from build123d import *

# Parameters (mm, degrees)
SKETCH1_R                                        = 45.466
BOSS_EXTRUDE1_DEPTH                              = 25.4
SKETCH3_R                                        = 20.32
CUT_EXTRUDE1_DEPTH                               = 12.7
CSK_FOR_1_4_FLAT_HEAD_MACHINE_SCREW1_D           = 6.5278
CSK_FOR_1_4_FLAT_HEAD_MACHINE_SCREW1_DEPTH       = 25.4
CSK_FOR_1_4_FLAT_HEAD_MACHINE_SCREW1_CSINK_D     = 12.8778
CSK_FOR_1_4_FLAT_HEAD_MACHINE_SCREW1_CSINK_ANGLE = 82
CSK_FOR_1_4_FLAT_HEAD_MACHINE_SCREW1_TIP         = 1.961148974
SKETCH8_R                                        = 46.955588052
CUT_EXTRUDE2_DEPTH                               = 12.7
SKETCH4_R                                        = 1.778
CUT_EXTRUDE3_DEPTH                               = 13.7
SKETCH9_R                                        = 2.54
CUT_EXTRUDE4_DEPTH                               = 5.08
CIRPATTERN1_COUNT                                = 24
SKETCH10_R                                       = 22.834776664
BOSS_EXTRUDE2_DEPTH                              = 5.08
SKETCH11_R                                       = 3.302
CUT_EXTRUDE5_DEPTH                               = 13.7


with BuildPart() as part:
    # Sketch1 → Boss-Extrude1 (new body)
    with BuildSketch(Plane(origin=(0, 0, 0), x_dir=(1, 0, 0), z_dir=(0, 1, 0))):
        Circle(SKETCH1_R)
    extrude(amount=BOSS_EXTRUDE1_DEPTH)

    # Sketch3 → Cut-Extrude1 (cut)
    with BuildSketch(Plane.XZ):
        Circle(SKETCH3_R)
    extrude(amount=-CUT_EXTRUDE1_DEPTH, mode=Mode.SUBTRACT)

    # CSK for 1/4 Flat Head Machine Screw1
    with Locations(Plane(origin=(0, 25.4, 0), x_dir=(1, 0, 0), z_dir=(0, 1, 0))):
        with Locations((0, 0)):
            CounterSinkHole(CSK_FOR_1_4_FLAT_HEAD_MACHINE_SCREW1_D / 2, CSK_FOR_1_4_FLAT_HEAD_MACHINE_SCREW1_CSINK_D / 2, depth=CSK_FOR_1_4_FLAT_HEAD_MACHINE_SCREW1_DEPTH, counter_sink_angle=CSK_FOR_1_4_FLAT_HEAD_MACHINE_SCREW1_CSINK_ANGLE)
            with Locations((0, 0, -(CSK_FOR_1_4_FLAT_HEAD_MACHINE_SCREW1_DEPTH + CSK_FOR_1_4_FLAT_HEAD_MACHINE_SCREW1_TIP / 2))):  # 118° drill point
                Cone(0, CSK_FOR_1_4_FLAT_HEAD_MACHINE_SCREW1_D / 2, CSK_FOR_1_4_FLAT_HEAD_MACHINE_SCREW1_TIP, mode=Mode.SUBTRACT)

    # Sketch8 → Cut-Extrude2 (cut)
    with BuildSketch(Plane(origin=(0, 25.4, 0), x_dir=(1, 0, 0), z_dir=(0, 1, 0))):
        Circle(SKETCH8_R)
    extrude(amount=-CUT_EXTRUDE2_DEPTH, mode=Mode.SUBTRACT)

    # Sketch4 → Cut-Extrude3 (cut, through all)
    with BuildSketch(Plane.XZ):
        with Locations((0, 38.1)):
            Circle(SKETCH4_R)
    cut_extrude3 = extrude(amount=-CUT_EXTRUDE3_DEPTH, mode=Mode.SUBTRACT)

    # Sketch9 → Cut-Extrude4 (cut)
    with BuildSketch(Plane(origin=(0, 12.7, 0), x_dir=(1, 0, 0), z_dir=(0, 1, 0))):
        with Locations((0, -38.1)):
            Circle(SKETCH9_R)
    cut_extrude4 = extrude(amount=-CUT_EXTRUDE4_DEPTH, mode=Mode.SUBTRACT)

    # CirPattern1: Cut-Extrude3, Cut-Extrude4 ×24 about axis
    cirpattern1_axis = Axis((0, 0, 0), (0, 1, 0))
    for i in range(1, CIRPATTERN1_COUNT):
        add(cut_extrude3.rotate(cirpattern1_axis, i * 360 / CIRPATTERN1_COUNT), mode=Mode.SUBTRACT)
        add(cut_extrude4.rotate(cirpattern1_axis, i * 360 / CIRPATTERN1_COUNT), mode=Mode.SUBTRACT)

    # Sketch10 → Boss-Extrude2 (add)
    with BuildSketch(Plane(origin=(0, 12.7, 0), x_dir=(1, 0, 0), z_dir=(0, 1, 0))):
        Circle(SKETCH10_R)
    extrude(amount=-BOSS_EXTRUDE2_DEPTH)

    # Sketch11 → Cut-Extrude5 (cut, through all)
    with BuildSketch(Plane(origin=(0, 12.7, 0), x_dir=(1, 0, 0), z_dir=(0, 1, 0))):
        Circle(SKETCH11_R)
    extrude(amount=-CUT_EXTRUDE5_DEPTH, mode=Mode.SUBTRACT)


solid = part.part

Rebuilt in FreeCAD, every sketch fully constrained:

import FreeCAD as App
import Part
import Sketcher
from FreeCAD import Vector
Q = App.Units.Quantity

doc = App.newDocument("Part")
body = doc.addObject("PartDesign::Body", "Body")

# Sketch on XZ plane
sketch1 = body.newObject("Sketcher::SketchObject", "Sketch")
sketch1.AttachmentSupport = (doc.getObject("XZ_Plane"), [""])
sketch1.MapMode = "FlatFace"
sketch1.addGeometry(Part.Circle(Vector(0, 0, 0), Vector(0, 0, 1), 45.466), False)
sketch1.addConstraint(Sketcher.Constraint("Coincident", 0, 3, -1, 1))
sketch1.addConstraint(Sketcher.Constraint("Diameter", 0, Q("3.58 in")))
pad1 = body.newObject("PartDesign::Pad", "Pad")
pad1.Profile = sketch1
pad1.Length = Q("1 in")
pad1.Reversed = True

# Sketch on XZ plane
sketch2 = body.newObject("Sketcher::SketchObject", "Sketch001")
sketch2.AttachmentSupport = (doc.getObject("XZ_Plane"), [""])
sketch2.MapMode = "FlatFace"
sketch2.addGeometry(Part.Circle(Vector(0, 0, 0), Vector(0, 0, 1), 20.32), False)
sketch2.addConstraint(Sketcher.Constraint("Coincident", 0, 3, -1, 1))
sketch2.addConstraint(Sketcher.Constraint("Diameter", 0, Q("1.6 in")))
pocket1 = body.newObject("PartDesign::Pocket", "Pocket")
pocket1.Profile = sketch2
pocket1.Length = Q("0.5 in")

# Sketch on XZ plane
sketch3 = body.newObject("Sketcher::SketchObject", "Sketch002")
sketch3.AttachmentSupport = (doc.getObject("XZ_Plane"), [""])
sketch3.MapMode = "FlatFace"
sketch3.AttachmentOffset = App.Placement(Vector(0, 0, -1 * 25.4), App.Rotation())
sketch3.addGeometry(Part.Circle(Vector(0, 0, 0), Vector(0, 0, 1), 3.2639), False)
sketch3.addConstraint(Sketcher.Constraint("Coincident", 0, 3, -1, 1))
sketch3.addConstraint(Sketcher.Constraint("Diameter", 0, Q("0.257 in")))
doc.recompute()
hole = body.newObject("PartDesign::Hole", "Hole")
hole.Profile = sketch3
hole.ThreadType = "None"
hole.Diameter = Q("0.257 in")
hole.DepthType = "Dimension"
hole.Depth = Q("1 in")
hole.DrillPoint = "Angled"
hole.DrillPointAngle = 118
hole.HoleCutType = "Countersink"
hole.HoleCutDiameter = Q("0.507 in")
hole.HoleCutCountersinkAngle = 82
hole.Reversed = True

# Sketch on XZ plane
sketch4 = body.newObject("Sketcher::SketchObject", "Sketch003")
sketch4.AttachmentSupport = (doc.getObject("XZ_Plane"), [""])
sketch4.MapMode = "FlatFace"
sketch4.AttachmentOffset = App.Placement(Vector(0, 0, -1 * 25.4), App.Rotation())
sketch4.addGeometry(Part.Circle(Vector(0, 0, 0), Vector(0, 0, 1), 46.955588), False)
sketch4.addConstraint(Sketcher.Constraint("Coincident", 0, 3, -1, 1))
sketch4.addConstraint(Sketcher.Constraint("Diameter", 0, Q("93.911176 mm")))
pocket2 = body.newObject("PartDesign::Pocket", "Pocket001")
pocket2.Profile = sketch4
pocket2.Length = Q("0.5 in")
pocket2.Reversed = True

# Sketch on XZ plane
sketch5 = body.newObject("Sketcher::SketchObject", "Sketch004")
sketch5.AttachmentSupport = (doc.getObject("XZ_Plane"), [""])
sketch5.MapMode = "FlatFace"
sketch5.addGeometry(Part.Circle(Vector(0, 38.1, 0), Vector(0, 0, 1), 1.778), False)
sketch5.addConstraint(Sketcher.Constraint("PointOnObject", 0, 3, -2))
sketch5.addConstraint(Sketcher.Constraint("Diameter", 0, Q("0.14 in")))
sketch5.addConstraint(Sketcher.Constraint("DistanceY", -1, 1, 0, 3, Q("1.5 in")))
pocket3 = body.newObject("PartDesign::Pocket", "Pocket002")
pocket3.Profile = sketch5
pocket3.Type = "ThroughAll"

# Sketch on XZ plane
sketch6 = body.newObject("Sketcher::SketchObject", "Sketch005")
sketch6.AttachmentSupport = (doc.getObject("XZ_Plane"), [""])
sketch6.MapMode = "FlatFace"
sketch6.AttachmentOffset = App.Placement(Vector(0, 0, -0.5 * 25.4), App.Rotation())
sketch6.addGeometry(Part.Circle(Vector(0, 38.1, 0), Vector(0, 0, 1), 2.54), False)
sketch6.addConstraint(Sketcher.Constraint("PointOnObject", 0, 3, -2))
sketch6.addConstraint(Sketcher.Constraint("Diameter", 0, Q("0.2 in")))
sketch6.addConstraint(Sketcher.Constraint("DistanceY", -1, 1, 0, 3, Q("1.5 in")))
pocket4 = body.newObject("PartDesign::Pocket", "Pocket003")
pocket4.Profile = sketch6
pocket4.Length = Q("0.2 in")
pocket4.Reversed = True
doc.recompute()

polarpattern = body.newObject("PartDesign::PolarPattern", "PolarPattern")
polarpattern.Originals = [pocket3, pocket4]
polarpattern.Axis = (doc.getObject("Y_Axis"), [""])
polarpattern.Angle = 360
polarpattern.Occurrences = 24
body.Tip = polarpattern

# Sketch on XZ plane
sketch7 = body.newObject("Sketcher::SketchObject", "Sketch006")
sketch7.AttachmentSupport = (doc.getObject("XZ_Plane"), [""])
sketch7.MapMode = "FlatFace"
sketch7.AttachmentOffset = App.Placement(Vector(0, 0, -0.5 * 25.4), App.Rotation())
sketch7.addGeometry(Part.Circle(Vector(0, 0, 0), Vector(0, 0, 1), 22.834777), False)
sketch7.addConstraint(Sketcher.Constraint("Coincident", 0, 3, -1, 1))
sketch7.addConstraint(Sketcher.Constraint("Diameter", 0, Q("45.669553 mm")))
pad2 = body.newObject("PartDesign::Pad", "Pad001")
pad2.Profile = sketch7
pad2.Length = Q("0.2 in")

# Sketch on XZ plane
sketch8 = body.newObject("Sketcher::SketchObject", "Sketch007")
sketch8.AttachmentSupport = (doc.getObject("XZ_Plane"), [""])
sketch8.MapMode = "FlatFace"
sketch8.AttachmentOffset = App.Placement(Vector(0, 0, -0.5 * 25.4), App.Rotation())
sketch8.addGeometry(Part.Circle(Vector(0, 0, 0), Vector(0, 0, 1), 3.302), False)
sketch8.addConstraint(Sketcher.Constraint("Coincident", 0, 3, -1, 1))
sketch8.addConstraint(Sketcher.Constraint("Diameter", 0, Q("0.26 in")))
pocket5 = body.newObject("PartDesign::Pocket", "Pocket004")
pocket5.Profile = sketch8
pocket5.Type = "ThroughAll"
pocket5.Reversed = True

doc.recompute()
